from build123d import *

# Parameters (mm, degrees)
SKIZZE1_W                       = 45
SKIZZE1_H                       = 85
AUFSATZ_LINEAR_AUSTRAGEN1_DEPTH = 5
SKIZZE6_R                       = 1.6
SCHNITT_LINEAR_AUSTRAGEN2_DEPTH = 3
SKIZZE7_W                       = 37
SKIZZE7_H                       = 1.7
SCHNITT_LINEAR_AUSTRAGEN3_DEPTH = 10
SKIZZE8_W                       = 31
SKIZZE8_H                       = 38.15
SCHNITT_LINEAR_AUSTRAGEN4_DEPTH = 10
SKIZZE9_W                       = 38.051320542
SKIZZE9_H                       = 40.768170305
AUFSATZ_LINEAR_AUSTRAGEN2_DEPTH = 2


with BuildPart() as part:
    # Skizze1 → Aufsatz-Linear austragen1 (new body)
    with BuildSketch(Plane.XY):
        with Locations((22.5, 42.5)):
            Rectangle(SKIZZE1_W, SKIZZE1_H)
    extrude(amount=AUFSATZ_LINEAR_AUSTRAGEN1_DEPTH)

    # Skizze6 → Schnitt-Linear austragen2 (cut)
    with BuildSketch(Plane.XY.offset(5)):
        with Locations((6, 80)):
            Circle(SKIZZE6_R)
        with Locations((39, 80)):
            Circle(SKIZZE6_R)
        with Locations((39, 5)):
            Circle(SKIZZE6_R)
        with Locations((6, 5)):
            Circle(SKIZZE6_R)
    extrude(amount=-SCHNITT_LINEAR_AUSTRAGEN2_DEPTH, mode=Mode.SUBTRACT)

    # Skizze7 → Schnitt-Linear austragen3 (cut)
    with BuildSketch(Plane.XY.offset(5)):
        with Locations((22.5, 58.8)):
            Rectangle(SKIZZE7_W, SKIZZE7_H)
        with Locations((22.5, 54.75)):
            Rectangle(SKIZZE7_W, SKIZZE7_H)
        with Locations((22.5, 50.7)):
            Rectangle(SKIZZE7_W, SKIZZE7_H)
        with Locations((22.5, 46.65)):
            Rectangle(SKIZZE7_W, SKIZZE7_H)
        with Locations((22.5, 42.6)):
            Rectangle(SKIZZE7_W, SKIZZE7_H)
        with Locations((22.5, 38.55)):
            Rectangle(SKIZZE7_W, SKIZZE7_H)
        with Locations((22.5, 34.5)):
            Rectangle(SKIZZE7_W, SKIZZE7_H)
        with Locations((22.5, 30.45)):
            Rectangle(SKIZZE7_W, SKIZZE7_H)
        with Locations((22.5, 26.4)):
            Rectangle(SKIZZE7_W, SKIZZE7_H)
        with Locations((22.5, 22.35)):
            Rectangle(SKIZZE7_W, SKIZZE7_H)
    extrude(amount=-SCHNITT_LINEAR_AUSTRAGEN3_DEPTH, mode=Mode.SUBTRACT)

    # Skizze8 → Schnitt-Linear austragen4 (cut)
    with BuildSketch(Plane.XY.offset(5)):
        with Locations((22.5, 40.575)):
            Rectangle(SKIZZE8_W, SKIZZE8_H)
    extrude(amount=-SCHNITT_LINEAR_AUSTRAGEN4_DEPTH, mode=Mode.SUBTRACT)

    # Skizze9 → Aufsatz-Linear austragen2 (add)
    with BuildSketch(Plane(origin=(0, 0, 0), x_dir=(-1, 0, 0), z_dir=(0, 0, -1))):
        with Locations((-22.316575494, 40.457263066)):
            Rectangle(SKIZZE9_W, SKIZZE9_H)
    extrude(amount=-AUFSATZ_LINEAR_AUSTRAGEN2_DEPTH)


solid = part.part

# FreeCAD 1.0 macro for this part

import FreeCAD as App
import Part
import Sketcher
Q = App.Units.Quantity


def add_polygon(sketch, points):
    """Adds a closed chain of lines whose ends are joined by coincident constraints."""
    first, n = sketch.GeometryCount, len(points)
    for a, b in zip(points, points[1:] + points[:1]):
        sketch.addGeometry(Part.LineSegment(App.Vector(*a, 0), App.Vector(*b, 0)), False)
    for i in range(n):
        sketch.addConstraint(Sketcher.Constraint("Coincident", first + i, 2, first + (i + 1) % n, 1))

doc = App.newDocument("Part")
body = doc.addObject("PartDesign::Body", "Body")

# Sketch on XY plane
sketch1 = doc.addObject("Sketcher::SketchObject", "Sketch")
body.addObject(sketch1)
sketch1.AttachmentSupport = (doc.XY_Plane, [""])
sketch1.MapMode = "FlatFace"
add_polygon(sketch1, [(0, 85), (0, 0), (45, 0), (45, 85)])  # lines 0-3
sketch1.addConstraint([
    Sketcher.Constraint("Vertical", 0),
    Sketcher.Constraint("Horizontal", 1),
    Sketcher.Constraint("Vertical", 2),
    Sketcher.Constraint("Horizontal", 3),
    Sketcher.Constraint("Coincident", 0, 2, -1, 1),
    Sketcher.Constraint("DistanceX", 1, 1, 1, 2, Q("45 mm")),
    Sketcher.Constraint("DistanceY", 0, 2, 0, 1, Q("85 mm")),
])
pad1 = doc.addObject("PartDesign::Pad", "Pad")
body.addObject(pad1)
pad1.Profile = sketch1
pad1.Length = 5

# Sketch on XY plane
sketch2 = doc.addObject("Sketcher::SketchObject", "Sketch001")
body.addObject(sketch2)
sketch2.AttachmentSupport = (doc.XY_Plane, [""])
sketch2.MapMode = "FlatFace"
sketch2.AttachmentOffset = App.Placement(App.Vector(0, 0, 5), App.Rotation())
sketch2.addGeometry([
    Part.Circle(App.Vector(6, 80, 0), App.Vector(0, 0, 1), 1.6),
    Part.Circle(App.Vector(39, 80, 0), App.Vector(0, 0, 1), 1.6),
    Part.Circle(App.Vector(39, 5, 0), App.Vector(0, 0, 1), 1.6),
    Part.Circle(App.Vector(6, 5, 0), App.Vector(0, 0, 1), 1.6),
], False)
sketch2.addConstraint([
    Sketcher.Constraint("Equal", 0, 1),
    Sketcher.Constraint("Equal", 1, 2),
    Sketcher.Constraint("Equal", 2, 3),
    Sketcher.Constraint("Horizontal", 0, 3, 1, 3),
    Sketcher.Constraint("Horizontal", 2, 3, 3, 3),
    Sketcher.Constraint("Vertical", 1, 3, 2, 3),
    Sketcher.Constraint("Vertical", 0, 3, 3, 3),
    Sketcher.Constraint("Diameter", 0, Q("3.2 mm")),
    Sketcher.Constraint("DistanceX", -1, 1, 0, 3, Q("6 mm")),
    Sketcher.Constraint("DistanceY", -1, 1, 0, 3, Q("80 mm")),
    Sketcher.Constraint("DistanceX", -1, 1, 1, 3, Q("39 mm")),
    Sketcher.Constraint("DistanceY", -1, 1, 2, 3, Q("5 mm")),
])
pocket1 = doc.addObject("PartDesign::Pocket", "Pocket")
body.addObject(pocket1)
pocket1.Profile = sketch2
pocket1.Length = 3

# Sketch on XY plane
sketch3 = doc.addObject("Sketcher::SketchObject", "Sketch002")
body.addObject(sketch3)
sketch3.AttachmentSupport = (doc.XY_Plane, [""])
sketch3.MapMode = "FlatFace"
sketch3.AttachmentOffset = App.Placement(App.Vector(0, 0, 5), App.Rotation())
add_polygon(sketch3, [(4, 59.6), (4, 58), (41, 58), (41, 59.6)])  # lines 0-3
add_polygon(sketch3, [(4, 55.6), (4, 53.9), (41, 53.9), (41, 55.6)])  # lines 4-7
add_polygon(sketch3, [(4, 51.5), (4, 49.9), (41, 49.9), (41, 51.5)])  # lines 8-11
add_polygon(sketch3, [(4, 47.5), (4, 45.8), (41, 45.8), (41, 47.5)])  # lines 12-15
add_polygon(sketch3, [(4, 43.5), (4, 41.8), (41, 41.8), (41, 43.5)])  # lines 16-19
add_polygon(sketch3, [(4, 39.4), (4, 37.7), (41, 37.7), (41, 39.4)])  # lines 20-23
add_polygon(sketch3, [(4, 35.4), (4, 33.6), (41, 33.6), (41, 35.4)])  # lines 24-27
add_polygon(sketch3, [(4, 31.3), (4, 29.6), (41, 29.6), (41, 31.3)])  # lines 28-31
add_polygon(sketch3, [(4, 27.2), (4, 25.6), (41, 25.6), (41, 27.2)])  # lines 32-35
add_polygon(sketch3, [(4, 23.2), (4, 21.5), (41, 21.5), (41, 23.2)])  # lines 36-39
sketch3.addConstraint([
    Sketcher.Constraint("Vertical", 0),
    Sketcher.Constraint("Horizontal", 1),
    Sketcher.Constraint("Vertical", 2),
    Sketcher.Constraint("Horizontal", 3),
    Sketcher.Constraint("Vertical", 4),
    Sketcher.Constraint("Horizontal", 5),
    Sketcher.Constraint("Vertical", 6),
    Sketcher.Constraint("Horizontal", 7),
    Sketcher.Constraint("Vertical", 8),
    Sketcher.Constraint("Horizontal", 9),
    Sketcher.Constraint("Vertical", 10),
    Sketcher.Constraint("Horizontal", 11),
    Sketcher.Constraint("Vertical", 12),
    Sketcher.Constraint("Horizontal", 13),
    Sketcher.Constraint("Vertical", 14),
    Sketcher.Constraint("Horizontal", 15),
    Sketcher.Constraint("Vertical", 16),
    Sketcher.Constraint("Horizontal", 17),
    Sketcher.Constraint("Vertical", 18),
    Sketcher.Constraint("Horizontal", 19),
    Sketcher.Constraint("Vertical", 20),
    Sketcher.Constraint("Horizontal", 21),
    Sketcher.Constraint("Vertical", 22),
    Sketcher.Constraint("Horizontal", 23),
    Sketcher.Constraint("Vertical", 24),
    Sketcher.Constraint("Horizontal", 25),
    Sketcher.Constraint("Vertical", 26),
    Sketcher.Constraint("Horizontal", 27),
    Sketcher.Constraint("Vertical", 28),
    Sketcher.Constraint("Horizontal", 29),
    Sketcher.Constraint("Vertical", 30),
    Sketcher.Constraint("Horizontal", 31),
    Sketcher.Constraint("Vertical", 32),
    Sketcher.Constraint("Horizontal", 33),
    Sketcher.Constraint("Vertical", 34),
    Sketcher.Constraint("Horizontal", 35),
    Sketcher.Constraint("Vertical", 36),
    Sketcher.Constraint("Horizontal", 37),
    Sketcher.Constraint("Vertical", 38),
    Sketcher.Constraint("Horizontal", 39),
    Sketcher.Constraint("Vertical", 3, 2, 4, 2),
    Sketcher.Constraint("Vertical", 2, 2, 5, 2),
    Sketcher.Constraint("Vertical", 7, 2, 8, 2),
    Sketcher.Constraint("Vertical", 6, 2, 9, 2),
    Sketcher.Constraint("Vertical", 11, 2, 12, 2),
    Sketcher.Constraint("Vertical", 10, 2, 13, 2),
    Sketcher.Constraint("Vertical", 15, 2, 16, 2),
    Sketcher.Constraint("Vertical", 14, 2, 17, 2),
    Sketcher.Constraint("Vertical", 19, 2, 20, 2),
    Sketcher.Constraint("Vertical", 18, 2, 21, 2),
    Sketcher.Constraint("Vertical", 23, 2, 24, 2),
    Sketcher.Constraint("Vertical", 22, 2, 25, 2),
    Sketcher.Constraint("Vertical", 27, 2, 28, 2),
    Sketcher.Constraint("Vertical", 26, 2, 29, 2),
    Sketcher.Constraint("Vertical", 31, 2, 32, 2),
    Sketcher.Constraint("Vertical", 30, 2, 33, 2),
    Sketcher.Constraint("Vertical", 35, 2, 36, 2),
    Sketcher.Constraint("Vertical", 34, 2, 37, 2),
    Sketcher.Constraint("Equal", 2, 4),
    Sketcher.Constraint("Equal", 6, 8),
    Sketcher.Constraint("Equal", 10, 12),
    Sketcher.Constraint("Equal", 14, 16),
    Sketcher.Constraint("Equal", 18, 20),
    Sketcher.Constraint("Equal", 22, 24),
    Sketcher.Constraint("Equal", 26, 28),
    Sketcher.Constraint("Equal", 30, 32),
    Sketcher.Constraint("Equal", 34, 36),
    Sketcher.Constraint("DistanceX", 1, 1, 1, 2, Q("37 mm")),
    Sketcher.Constraint("DistanceY", 0, 2, 0, 1, Q("1.7 mm")),
    Sketcher.Constraint("DistanceX", -1, 1, 0, 2, Q("4 mm")),
    Sketcher.Constraint("DistanceY", -1, 1, 4, 2, Q("53.9 mm")),
    Sketcher.Constraint("DistanceY", -1, 1, 12, 2, Q("45.8 mm")),
    Sketcher.Constraint("DistanceY", -1, 1, 20, 2, Q("37.7 mm")),
    Sketcher.Constraint("DistanceY", -1, 1, 28, 2, Q("29.6 mm")),
    Sketcher.Constraint("DistanceY", -1, 1, 36, 2, Q("21.5 mm")),
    Sketcher.Constraint("DistanceY", 8, 2, 0, 2, Q("8.1 mm")),
    Sketcher.Constraint("DistanceY", 16, 2, 8, 2, Q("8.1 mm")),
    Sketcher.Constraint("DistanceY", 24, 2, 16, 2, Q("8.1 mm")),
    Sketcher.Constraint("DistanceY", 32, 2, 24, 2, Q("8.1 mm")),
    Sketcher.Constraint("DistanceY", -1, 1, 0, 2, Q("57.95 mm")),
])
pocket2 = doc.addObject("PartDesign::Pocket", "Pocket001")
body.addObject(pocket2)
pocket2.Profile = sketch3
pocket2.Length = 10

# Sketch on XY plane
sketch4 = doc.addObject("Sketcher::SketchObject", "Sketch003")
body.addObject(sketch4)
sketch4.AttachmentSupport = (doc.XY_Plane, [""])
sketch4.MapMode = "FlatFace"
sketch4.AttachmentOffset = App.Placement(App.Vector(0, 0, 5), App.Rotation())
add_polygon(sketch4, [(7, 60), (7, 22), (38, 22), (38, 60)])  # lines 0-3
sketch4.addConstraint([
    Sketcher.Constraint("Vertical", 0),
    Sketcher.Constraint("Horizontal", 1),
    Sketcher.Constraint("Vertical", 2),
    Sketcher.Constraint("Horizontal", 3),
    Sketcher.Constraint("DistanceX", 1, 1, 1, 2, Q("31 mm")),
    Sketcher.Constraint("DistanceX", -1, 1, 0, 2, Q("7 mm")),
    Sketcher.Constraint("DistanceY", 0, 2, 0, 1, Q("38.15 mm")),
    Sketcher.Constraint("DistanceY", -1, 1, 0, 2, Q("21.5 mm")),
])
pocket3 = doc.addObject("PartDesign::Pocket", "Pocket002")
body.addObject(pocket3)
pocket3.Profile = sketch4
pocket3.Length = 10

# Sketch on XY plane
sketch5 = doc.addObject("Sketcher::SketchObject", "Sketch004")
body.addObject(sketch5)
sketch5.AttachmentSupport = (doc.XY_Plane, [""])
sketch5.MapMode = "FlatFace"
add_polygon(sketch5, [(41, 61), (41, 20), (3, 20), (3, 61)])  # lines 0-3
sketch5.addConstraint([
    Sketcher.Constraint("Vertical", 0),
    Sketcher.Constraint("Horizontal", 1),
    Sketcher.Constraint("Vertical", 2),
    Sketcher.Constraint("Horizontal", 3),
    Sketcher.Constraint("DistanceX", 1, 2, 1, 1, Q("38.051321 mm")),
    Sketcher.Constraint("DistanceY", 0, 2, 0, 1, Q("40.76817 mm")),
    Sketcher.Constraint("DistanceY", -1, 1, 2, 2, Q("60.841348 mm")),
    Sketcher.Constraint("DistanceX", -1, 1, 0, 2, Q("41.342236 mm")),
])
pad2 = doc.addObject("PartDesign::Pad", "Pad001")
body.addObject(pad2)
pad2.Profile = sketch5
pad2.Length = 2

doc.recompute()
